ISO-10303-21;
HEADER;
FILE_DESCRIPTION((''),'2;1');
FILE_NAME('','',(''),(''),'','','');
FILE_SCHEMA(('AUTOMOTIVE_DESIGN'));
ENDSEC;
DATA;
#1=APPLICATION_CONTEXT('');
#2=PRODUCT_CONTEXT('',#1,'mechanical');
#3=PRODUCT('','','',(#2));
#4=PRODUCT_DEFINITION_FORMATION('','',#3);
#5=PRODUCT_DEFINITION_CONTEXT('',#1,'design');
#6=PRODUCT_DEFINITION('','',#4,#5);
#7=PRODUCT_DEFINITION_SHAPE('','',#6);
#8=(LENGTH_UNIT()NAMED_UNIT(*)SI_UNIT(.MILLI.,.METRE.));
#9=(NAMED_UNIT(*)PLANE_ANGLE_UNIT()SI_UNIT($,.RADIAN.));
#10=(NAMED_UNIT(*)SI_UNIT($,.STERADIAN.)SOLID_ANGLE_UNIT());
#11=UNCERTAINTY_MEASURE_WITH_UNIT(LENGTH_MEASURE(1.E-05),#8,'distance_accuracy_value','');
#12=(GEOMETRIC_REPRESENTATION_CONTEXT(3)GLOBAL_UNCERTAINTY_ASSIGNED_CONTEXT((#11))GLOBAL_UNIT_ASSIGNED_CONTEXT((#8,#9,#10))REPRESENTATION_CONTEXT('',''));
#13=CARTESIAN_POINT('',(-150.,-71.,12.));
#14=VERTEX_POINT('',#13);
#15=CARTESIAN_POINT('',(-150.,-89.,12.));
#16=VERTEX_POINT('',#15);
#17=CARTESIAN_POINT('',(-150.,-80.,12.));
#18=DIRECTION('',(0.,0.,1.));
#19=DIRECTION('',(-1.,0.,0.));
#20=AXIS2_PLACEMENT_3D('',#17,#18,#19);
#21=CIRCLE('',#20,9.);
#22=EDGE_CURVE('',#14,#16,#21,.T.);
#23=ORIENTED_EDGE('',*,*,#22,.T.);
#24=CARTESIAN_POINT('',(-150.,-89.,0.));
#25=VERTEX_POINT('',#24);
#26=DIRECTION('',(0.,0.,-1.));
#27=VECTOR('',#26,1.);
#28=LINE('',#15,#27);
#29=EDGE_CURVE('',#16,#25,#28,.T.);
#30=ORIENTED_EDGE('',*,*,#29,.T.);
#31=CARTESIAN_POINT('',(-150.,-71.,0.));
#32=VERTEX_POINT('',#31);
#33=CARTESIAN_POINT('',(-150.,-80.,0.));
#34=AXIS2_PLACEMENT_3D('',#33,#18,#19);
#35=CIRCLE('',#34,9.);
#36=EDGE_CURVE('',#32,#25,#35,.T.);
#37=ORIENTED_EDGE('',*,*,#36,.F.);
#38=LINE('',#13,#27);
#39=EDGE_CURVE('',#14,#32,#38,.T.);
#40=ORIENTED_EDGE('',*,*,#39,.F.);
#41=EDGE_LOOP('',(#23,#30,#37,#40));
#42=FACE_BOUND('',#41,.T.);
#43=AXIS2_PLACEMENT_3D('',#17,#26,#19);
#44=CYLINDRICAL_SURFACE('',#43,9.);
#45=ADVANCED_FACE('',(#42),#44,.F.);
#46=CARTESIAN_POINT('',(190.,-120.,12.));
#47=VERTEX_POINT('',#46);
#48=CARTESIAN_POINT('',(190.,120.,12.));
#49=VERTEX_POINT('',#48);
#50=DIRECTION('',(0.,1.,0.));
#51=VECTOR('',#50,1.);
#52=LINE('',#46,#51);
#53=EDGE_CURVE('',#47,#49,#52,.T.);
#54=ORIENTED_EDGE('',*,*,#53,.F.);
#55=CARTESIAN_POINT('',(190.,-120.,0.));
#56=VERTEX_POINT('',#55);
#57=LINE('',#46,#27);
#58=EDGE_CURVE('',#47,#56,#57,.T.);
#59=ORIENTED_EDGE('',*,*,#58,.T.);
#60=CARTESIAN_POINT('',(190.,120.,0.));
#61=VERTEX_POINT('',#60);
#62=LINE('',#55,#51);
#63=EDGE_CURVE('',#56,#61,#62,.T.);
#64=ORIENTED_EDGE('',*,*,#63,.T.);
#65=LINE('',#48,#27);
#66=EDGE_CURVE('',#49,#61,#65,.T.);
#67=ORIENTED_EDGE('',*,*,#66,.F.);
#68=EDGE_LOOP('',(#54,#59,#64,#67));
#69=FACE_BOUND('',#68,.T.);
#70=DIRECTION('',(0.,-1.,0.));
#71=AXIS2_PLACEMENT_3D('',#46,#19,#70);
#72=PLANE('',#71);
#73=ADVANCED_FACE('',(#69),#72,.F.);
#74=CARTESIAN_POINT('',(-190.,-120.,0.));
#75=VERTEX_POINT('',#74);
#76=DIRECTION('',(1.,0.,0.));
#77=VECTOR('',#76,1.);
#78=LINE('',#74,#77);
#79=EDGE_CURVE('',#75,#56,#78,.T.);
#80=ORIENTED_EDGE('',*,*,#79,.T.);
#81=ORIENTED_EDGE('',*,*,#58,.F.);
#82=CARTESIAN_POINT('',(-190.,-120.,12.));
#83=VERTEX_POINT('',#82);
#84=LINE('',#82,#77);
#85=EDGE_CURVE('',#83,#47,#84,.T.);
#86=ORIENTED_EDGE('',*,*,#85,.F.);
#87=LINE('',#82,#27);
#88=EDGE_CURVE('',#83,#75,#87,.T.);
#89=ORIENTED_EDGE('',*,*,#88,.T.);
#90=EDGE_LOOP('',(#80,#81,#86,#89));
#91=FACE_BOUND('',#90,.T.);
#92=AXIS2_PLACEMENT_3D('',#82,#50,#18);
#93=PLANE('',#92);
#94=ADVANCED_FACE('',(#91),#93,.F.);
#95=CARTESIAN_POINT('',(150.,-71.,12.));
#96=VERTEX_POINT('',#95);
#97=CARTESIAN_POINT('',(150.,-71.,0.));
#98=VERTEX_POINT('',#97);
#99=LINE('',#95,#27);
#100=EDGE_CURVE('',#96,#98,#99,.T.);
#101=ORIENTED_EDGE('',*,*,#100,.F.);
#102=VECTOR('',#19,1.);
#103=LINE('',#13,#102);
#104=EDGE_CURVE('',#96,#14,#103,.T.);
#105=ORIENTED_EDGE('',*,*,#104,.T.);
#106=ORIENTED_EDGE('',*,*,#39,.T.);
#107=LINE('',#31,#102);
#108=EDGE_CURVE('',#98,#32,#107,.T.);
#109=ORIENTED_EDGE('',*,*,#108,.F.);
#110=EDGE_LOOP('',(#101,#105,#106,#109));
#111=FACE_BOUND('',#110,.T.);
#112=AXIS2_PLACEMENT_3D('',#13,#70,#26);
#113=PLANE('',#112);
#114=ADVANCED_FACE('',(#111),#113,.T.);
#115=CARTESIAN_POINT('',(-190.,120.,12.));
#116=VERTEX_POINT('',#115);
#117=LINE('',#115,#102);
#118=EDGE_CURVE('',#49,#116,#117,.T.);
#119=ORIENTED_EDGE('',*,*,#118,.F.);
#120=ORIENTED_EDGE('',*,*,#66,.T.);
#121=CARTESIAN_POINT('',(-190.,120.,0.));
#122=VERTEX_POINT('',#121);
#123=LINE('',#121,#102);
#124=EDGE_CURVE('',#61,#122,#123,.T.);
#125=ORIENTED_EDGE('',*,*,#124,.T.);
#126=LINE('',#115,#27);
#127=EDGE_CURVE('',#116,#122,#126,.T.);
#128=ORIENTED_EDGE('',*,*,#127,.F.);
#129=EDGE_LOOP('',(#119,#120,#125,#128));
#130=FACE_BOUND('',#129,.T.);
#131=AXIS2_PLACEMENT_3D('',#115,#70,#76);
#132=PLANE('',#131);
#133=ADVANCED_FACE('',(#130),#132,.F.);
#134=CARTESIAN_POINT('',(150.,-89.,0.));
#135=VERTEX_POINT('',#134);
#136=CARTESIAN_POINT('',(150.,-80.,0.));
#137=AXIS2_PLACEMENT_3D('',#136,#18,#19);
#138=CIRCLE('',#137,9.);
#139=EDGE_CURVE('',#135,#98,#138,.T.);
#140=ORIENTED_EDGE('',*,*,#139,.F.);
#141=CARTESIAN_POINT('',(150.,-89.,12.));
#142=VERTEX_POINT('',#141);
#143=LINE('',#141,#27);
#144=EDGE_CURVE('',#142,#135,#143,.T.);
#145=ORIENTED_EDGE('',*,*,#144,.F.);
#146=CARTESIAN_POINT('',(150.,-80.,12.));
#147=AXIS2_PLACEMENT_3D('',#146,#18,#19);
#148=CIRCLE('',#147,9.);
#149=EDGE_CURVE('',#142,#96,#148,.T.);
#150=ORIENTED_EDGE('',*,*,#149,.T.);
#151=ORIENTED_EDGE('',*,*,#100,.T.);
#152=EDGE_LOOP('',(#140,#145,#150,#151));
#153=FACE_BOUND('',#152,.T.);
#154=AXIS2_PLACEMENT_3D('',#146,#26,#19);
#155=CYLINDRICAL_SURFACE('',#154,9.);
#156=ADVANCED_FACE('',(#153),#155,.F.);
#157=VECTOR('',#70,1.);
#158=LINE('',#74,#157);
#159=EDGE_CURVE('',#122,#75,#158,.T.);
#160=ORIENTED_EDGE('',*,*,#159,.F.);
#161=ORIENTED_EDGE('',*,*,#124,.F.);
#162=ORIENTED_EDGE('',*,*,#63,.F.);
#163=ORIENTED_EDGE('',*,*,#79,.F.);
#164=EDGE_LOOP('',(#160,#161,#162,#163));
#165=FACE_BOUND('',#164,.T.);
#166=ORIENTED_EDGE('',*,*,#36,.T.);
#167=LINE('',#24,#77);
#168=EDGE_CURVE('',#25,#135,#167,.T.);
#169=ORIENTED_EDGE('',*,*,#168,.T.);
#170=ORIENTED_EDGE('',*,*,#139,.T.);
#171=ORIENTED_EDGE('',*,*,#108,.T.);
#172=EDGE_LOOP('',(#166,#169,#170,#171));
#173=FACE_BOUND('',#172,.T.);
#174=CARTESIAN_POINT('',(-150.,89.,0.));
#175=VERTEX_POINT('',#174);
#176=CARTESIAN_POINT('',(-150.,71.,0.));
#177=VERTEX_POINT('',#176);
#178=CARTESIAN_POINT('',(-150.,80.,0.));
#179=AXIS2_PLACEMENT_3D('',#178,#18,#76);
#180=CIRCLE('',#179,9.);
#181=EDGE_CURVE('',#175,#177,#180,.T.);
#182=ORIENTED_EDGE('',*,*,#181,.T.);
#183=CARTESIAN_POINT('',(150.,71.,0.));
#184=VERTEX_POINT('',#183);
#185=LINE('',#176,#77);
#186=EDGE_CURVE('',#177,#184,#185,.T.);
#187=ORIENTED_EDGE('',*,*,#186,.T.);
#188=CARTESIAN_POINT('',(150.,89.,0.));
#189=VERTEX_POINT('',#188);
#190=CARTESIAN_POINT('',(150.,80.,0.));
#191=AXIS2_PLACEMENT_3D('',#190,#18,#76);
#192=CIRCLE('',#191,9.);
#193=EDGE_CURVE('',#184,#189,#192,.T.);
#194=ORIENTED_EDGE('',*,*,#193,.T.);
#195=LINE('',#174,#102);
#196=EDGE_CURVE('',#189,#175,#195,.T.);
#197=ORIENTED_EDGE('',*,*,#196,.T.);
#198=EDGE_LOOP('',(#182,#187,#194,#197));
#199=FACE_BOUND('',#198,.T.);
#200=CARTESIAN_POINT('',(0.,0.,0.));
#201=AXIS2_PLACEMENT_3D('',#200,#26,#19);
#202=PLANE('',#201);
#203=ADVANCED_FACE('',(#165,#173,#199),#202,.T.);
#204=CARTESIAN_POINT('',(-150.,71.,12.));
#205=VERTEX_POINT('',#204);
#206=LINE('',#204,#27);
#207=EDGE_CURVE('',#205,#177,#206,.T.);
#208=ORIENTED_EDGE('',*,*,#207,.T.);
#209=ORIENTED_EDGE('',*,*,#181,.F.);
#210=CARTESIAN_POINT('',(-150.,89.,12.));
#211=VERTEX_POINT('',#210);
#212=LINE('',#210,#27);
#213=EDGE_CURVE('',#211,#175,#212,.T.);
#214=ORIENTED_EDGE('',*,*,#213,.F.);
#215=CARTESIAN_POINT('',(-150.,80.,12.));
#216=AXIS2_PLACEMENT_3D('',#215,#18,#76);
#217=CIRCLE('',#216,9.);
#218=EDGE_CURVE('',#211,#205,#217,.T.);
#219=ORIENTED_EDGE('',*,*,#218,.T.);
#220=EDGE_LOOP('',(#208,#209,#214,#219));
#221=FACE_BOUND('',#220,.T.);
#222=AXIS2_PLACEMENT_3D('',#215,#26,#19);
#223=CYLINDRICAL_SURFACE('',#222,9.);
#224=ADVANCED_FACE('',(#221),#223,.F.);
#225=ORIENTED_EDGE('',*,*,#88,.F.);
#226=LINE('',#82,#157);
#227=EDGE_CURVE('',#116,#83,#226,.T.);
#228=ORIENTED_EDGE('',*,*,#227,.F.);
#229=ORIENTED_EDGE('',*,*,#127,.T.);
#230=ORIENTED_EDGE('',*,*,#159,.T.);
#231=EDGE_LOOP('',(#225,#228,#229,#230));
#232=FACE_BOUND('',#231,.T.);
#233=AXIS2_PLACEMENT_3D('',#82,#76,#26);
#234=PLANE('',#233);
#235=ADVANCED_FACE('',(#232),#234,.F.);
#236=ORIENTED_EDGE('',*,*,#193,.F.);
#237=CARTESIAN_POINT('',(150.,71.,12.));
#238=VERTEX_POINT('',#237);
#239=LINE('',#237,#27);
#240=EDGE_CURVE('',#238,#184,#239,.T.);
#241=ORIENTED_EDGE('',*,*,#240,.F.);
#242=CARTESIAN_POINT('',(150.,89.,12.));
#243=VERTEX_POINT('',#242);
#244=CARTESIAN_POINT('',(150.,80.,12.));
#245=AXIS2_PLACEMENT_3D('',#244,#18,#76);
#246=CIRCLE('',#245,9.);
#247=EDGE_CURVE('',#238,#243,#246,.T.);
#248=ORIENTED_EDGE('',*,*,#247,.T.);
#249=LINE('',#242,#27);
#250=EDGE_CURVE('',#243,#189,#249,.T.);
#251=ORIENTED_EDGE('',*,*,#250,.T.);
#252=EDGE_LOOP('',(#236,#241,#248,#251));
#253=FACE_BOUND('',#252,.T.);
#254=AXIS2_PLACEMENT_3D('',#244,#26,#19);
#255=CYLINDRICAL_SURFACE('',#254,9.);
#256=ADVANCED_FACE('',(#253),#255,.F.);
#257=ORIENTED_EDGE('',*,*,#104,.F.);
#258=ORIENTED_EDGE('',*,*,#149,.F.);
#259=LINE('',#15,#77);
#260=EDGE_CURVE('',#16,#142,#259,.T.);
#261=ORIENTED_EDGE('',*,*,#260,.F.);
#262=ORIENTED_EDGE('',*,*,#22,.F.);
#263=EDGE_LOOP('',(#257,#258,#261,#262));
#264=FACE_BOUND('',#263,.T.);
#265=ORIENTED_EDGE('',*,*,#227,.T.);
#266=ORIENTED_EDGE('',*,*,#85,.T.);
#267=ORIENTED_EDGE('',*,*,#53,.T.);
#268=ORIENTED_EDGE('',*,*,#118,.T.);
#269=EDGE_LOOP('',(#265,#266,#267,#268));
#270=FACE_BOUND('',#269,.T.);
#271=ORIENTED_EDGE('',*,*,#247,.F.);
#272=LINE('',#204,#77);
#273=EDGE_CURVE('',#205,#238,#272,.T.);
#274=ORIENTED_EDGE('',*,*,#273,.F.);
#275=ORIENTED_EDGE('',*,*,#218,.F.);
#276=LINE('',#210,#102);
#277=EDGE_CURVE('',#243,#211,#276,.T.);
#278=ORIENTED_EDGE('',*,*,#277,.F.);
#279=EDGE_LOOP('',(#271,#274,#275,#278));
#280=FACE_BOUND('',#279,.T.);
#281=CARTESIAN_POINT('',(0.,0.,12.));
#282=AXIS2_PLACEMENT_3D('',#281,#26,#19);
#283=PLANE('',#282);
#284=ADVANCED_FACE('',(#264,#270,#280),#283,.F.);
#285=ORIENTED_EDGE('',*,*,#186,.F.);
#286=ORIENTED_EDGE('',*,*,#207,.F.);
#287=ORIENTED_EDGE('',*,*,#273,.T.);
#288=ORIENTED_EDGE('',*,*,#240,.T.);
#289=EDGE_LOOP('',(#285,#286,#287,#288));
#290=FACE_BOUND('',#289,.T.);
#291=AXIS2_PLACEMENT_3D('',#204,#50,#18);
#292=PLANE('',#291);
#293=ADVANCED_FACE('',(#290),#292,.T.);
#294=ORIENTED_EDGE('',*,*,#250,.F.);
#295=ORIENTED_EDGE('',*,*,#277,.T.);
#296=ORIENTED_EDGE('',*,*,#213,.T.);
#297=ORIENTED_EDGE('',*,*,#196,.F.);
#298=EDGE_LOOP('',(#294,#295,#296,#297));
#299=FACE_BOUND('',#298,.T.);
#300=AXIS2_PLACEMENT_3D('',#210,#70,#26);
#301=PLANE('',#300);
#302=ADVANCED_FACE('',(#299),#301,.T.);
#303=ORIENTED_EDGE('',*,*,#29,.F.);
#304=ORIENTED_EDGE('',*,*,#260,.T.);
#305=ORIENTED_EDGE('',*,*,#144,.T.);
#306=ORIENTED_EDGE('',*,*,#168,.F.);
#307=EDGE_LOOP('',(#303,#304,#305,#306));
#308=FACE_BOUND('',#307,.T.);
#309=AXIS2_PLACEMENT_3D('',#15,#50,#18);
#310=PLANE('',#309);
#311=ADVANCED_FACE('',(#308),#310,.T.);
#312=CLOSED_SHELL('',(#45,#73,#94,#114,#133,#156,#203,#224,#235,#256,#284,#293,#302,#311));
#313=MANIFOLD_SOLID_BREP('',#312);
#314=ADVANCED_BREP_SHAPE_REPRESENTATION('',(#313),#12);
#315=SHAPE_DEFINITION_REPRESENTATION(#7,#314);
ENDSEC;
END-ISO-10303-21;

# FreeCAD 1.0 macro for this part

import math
import FreeCAD as App
import Part
import Sketcher

V = App.Vector

doc = App.newDocument("Part")
body = doc.addObject("PartDesign::Body", "Body")

# Sketch on XY plane
sketch1 = body.newObject("Sketcher::SketchObject", "Sketch")
sketch1.AttachmentSupport = (doc.getObject("XY_Plane"), [""])
sketch1.MapMode = "FlatFace"
sketch1.addGeometry([
    Part.LineSegment(V(-190, 120, 0), V(-190, -120, 0)),  # 0
    Part.LineSegment(V(-190, -120, 0), V(190, -120, 0)),  # 1
    Part.LineSegment(V(190, -120, 0), V(190, 120, 0)),  # 2
    Part.LineSegment(V(190, 120, 0), V(-190, 120, 0)),  # 3
    Part.LineSegment(V(150, -89, 0), V(-150, -89, 0)),  # 4
    Part.ArcOfCircle(Part.Circle(V(-150, -80, 0), V(0, 0, 1), 9), math.radians(90), math.radians(270)),  # 5
    Part.LineSegment(V(-150, -71, 0), V(150, -71, 0)),  # 6
    Part.ArcOfCircle(Part.Circle(V(150, -80, 0), V(0, 0, 1), 9), math.radians(-90), math.radians(90)),  # 7
    Part.ArcOfCircle(Part.Circle(V(-150, 80, 0), V(0, 0, 1), 9), math.radians(90), math.radians(270)),  # 8
    Part.LineSegment(V(-150, 89, 0), V(150, 89, 0)),  # 9
    Part.ArcOfCircle(Part.Circle(V(150, 80, 0), V(0, 0, 1), 9), math.radians(-90), math.radians(90)),  # 10
    Part.LineSegment(V(150, 71, 0), V(-150, 71, 0)),  # 11
], False)
sketch1.addConstraint([
    Sketcher.Constraint("Coincident", 0, 2, 1, 1),
    Sketcher.Constraint("Coincident", 1, 2, 2, 1),
    Sketcher.Constraint("Coincident", 2, 2, 3, 1),
    Sketcher.Constraint("Coincident", 3, 2, 0, 1),
    Sketcher.Constraint("Tangent", 4, 2, 5, 2),
    Sketcher.Constraint("Tangent", 5, 1, 6, 1),
    Sketcher.Constraint("Tangent", 6, 2, 7, 2),
    Sketcher.Constraint("Tangent", 7, 1, 4, 1),
    Sketcher.Constraint("Tangent", 8, 1, 9, 1),
    Sketcher.Constraint("Tangent", 9, 2, 10, 2),
    Sketcher.Constraint("Tangent", 10, 1, 11, 1),
    Sketcher.Constraint("Tangent", 11, 2, 8, 2),
    Sketcher.Constraint("Vertical", 0),
    Sketcher.Constraint("Horizontal", 1),
    Sketcher.Constraint("Vertical", 2),
    Sketcher.Constraint("Horizontal", 3),
    Sketcher.Constraint("Horizontal", 4),
    Sketcher.Constraint("Horizontal", 6),
    Sketcher.Constraint("Horizontal", 9),
    Sketcher.Constraint("Horizontal", 11),
    Sketcher.Constraint("Equal", 7, 8),
    Sketcher.Constraint("Symmetric", 7, 3, 8, 3, -1, 1),
    Sketcher.Constraint("Symmetric", 0, 2, 2, 2, -1, 1),
    Sketcher.Constraint("Vertical", 5, 3, 8, 3),
    Sketcher.Constraint("Vertical", 7, 3, 10, 3),
    Sketcher.Constraint("Radius", 5, 9.0),
    Sketcher.Constraint("DistanceX", 1, 1, 1, 2, 380.0),
    Sketcher.Constraint("DistanceX", 4, 2, 4, 1, 300.0),
    Sketcher.Constraint("DistanceY", 0, 2, 0, 1, 240.0),
    Sketcher.Constraint("DistanceY", 5, 3, -1, 1, 80.0),
])
pad1 = body.newObject("PartDesign::Pad", "Pad")
pad1.Profile = sketch1
pad1.Length = 12

doc.recompute()
